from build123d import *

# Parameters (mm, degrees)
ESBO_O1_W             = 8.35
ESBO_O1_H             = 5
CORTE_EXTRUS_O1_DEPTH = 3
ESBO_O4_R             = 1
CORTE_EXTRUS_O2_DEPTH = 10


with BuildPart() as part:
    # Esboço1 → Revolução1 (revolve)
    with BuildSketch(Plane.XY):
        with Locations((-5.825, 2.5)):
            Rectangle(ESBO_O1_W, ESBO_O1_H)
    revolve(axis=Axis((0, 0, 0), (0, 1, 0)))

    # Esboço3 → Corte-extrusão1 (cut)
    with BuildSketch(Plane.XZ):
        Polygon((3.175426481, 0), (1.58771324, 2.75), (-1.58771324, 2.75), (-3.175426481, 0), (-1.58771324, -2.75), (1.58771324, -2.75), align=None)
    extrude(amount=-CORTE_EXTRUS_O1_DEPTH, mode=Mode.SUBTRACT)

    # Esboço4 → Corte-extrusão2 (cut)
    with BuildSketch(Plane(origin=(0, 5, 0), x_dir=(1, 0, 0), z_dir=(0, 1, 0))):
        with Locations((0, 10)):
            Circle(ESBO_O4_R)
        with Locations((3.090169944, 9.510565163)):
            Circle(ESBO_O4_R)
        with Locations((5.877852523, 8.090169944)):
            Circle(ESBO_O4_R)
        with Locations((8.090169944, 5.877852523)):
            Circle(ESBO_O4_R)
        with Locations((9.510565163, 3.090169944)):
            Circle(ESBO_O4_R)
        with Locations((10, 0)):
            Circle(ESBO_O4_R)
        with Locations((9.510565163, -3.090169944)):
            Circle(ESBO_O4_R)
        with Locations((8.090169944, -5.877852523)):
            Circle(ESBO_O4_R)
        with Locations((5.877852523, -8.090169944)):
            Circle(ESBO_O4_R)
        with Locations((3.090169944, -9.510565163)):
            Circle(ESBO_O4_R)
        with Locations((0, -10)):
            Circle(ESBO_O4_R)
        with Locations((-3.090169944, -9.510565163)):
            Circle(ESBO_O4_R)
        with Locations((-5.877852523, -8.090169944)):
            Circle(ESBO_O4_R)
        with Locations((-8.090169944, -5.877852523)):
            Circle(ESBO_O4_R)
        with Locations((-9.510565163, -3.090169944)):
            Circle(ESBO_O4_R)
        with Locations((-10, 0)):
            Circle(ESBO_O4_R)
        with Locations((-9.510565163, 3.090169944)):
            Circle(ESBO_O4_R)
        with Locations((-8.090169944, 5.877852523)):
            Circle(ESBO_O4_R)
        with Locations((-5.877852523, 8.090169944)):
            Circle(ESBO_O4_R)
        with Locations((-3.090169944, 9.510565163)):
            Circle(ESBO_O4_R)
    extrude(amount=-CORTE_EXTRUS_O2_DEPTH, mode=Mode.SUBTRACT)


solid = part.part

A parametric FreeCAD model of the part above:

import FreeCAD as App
import Part
import Sketcher
Q = App.Units.Quantity

doc = App.newDocument("Part")
body = doc.addObject("PartDesign::Body", "Body")

# Sketch on XY plane
sketch1 = body.newObject("Sketcher::SketchObject", "Sketch")
sketch1.AttachmentSupport = (doc.getObject("XY_Plane"), [""])
sketch1.MapMode = "FlatFace"
sketch1.addGeometry(Part.LineSegment(App.Vector(-10, 5, 0), App.Vector(-10, 0, 0)), False)
sketch1.addGeometry(Part.LineSegment(App.Vector(-10, 0, 0), App.Vector(-1.65, 0, 0)), False)
sketch1.addGeometry(Part.LineSegment(App.Vector(-1.65, 0, 0), App.Vector(-1.65, 5, 0)), False)
sketch1.addGeometry(Part.LineSegment(App.Vector(-1.65, 5, 0), App.Vector(-10, 5, 0)), False)
sketch1.addConstraint(Sketcher.Constraint("Coincident", 0, 2, 1, 1))
sketch1.addConstraint(Sketcher.Constraint("Coincident", 1, 2, 2, 1))
sketch1.addConstraint(Sketcher.Constraint("Coincident", 2, 2, 3, 1))
sketch1.addConstraint(Sketcher.Constraint("Coincident", 3, 2, 0, 1))
sketch1.addConstraint(Sketcher.Constraint("Vertical", 0))
sketch1.addConstraint(Sketcher.Constraint("Horizontal", 1))
sketch1.addConstraint(Sketcher.Constraint("Vertical", 2))
sketch1.addConstraint(Sketcher.Constraint("Horizontal", 3))
sketch1.addConstraint(Sketcher.Constraint("PointOnObject", 0, 2, -1))
sketch1.addConstraint(Sketcher.Constraint("DistanceY", 0, 2, 0, 1, Q("5 mm")))
sketch1.addConstraint(Sketcher.Constraint("DistanceX", 0, 2, -1, 1, Q("10 mm")))
sketch1.addConstraint(Sketcher.Constraint("DistanceX", 1, 1, 1, 2, Q("8.35 mm")))
revolution = body.newObject("PartDesign::Revolution", "Revolution")
revolution.Profile = sketch1
revolution.ReferenceAxis = (sketch1, ["V_Axis"])
revolution.Angle = 360

# Sketch on XZ plane
sketch2 = body.newObject("Sketcher::SketchObject", "Sketch001")
sketch2.AttachmentSupport = (doc.getObject("XZ_Plane"), [""])
sketch2.MapMode = "FlatFace"
sketch2.addGeometry(Part.LineSegment(App.Vector(3.175426, 0, 0), App.Vector(1.587713, 2.75, 0)), False)
sketch2.addGeometry(Part.LineSegment(App.Vector(1.587713, 2.75, 0), App.Vector(-1.587713, 2.75, 0)), False)
sketch2.addGeometry(Part.LineSegment(App.Vector(-1.587713, 2.75, 0), App.Vector(-3.175426, 0, 0)), False)
sketch2.addGeometry(Part.LineSegment(App.Vector(-3.175426, 0, 0), App.Vector(-1.587713, -2.75, 0)), False)
sketch2.addGeometry(Part.LineSegment(App.Vector(-1.587713, -2.75, 0), App.Vector(1.587713, -2.75, 0)), False)
sketch2.addGeometry(Part.LineSegment(App.Vector(1.587713, -2.75, 0), App.Vector(3.175426, 0, 0)), False)
sketch2.addConstraint(Sketcher.Constraint("Coincident", 0, 2, 1, 1))
sketch2.addConstraint(Sketcher.Constraint("Coincident", 1, 2, 2, 1))
sketch2.addConstraint(Sketcher.Constraint("Coincident", 2, 2, 3, 1))
sketch2.addConstraint(Sketcher.Constraint("Coincident", 3, 2, 4, 1))
sketch2.addConstraint(Sketcher.Constraint("Coincident", 4, 2, 5, 1))
sketch2.addConstraint(Sketcher.Constraint("Coincident", 5, 2, 0, 1))
sketch2.addConstraint(Sketcher.Constraint("Horizontal", 1))
sketch2.addConstraint(Sketcher.Constraint("Horizontal", 4))
sketch2.addConstraint(Sketcher.Constraint("Symmetric", 0, 2, 3, 2, -1, 1))
sketch2.addConstraint(Sketcher.Constraint("Symmetric", 2, 2, 5, 2, -1, 1))
sketch2.addConstraint(Sketcher.Constraint("PointOnObject", 2, 2, -1))
sketch2.addConstraint(Sketcher.Constraint("Parallel", 2, 5))
sketch2.addConstraint(Sketcher.Constraint("Vertical", 1, 2, 3, 2))
sketch2.addConstraint(Sketcher.Constraint("Angle", 0, Q("120 deg")))
sketch2.addConstraint(Sketcher.Constraint("DistanceY", 3, 2, 1, 2, Q("5.5 mm")))
sketch2.addConstraint(Sketcher.Constraint("DistanceX", 1, 2, 1, 1, Q("3.175426 mm")))
pocket1 = body.newObject("PartDesign::Pocket", "Pocket")
pocket1.Profile = sketch2
pocket1.Length = 3

# Sketch on XZ plane
sketch3 = body.newObject("Sketcher::SketchObject", "Sketch002")
sketch3.AttachmentSupport = (doc.getObject("XZ_Plane"), [""])
sketch3.MapMode = "FlatFace"
sketch3.AttachmentOffset = App.Placement(App.Vector(0, 0, -5), App.Rotation())
sketch3.addGeometry(Part.Circle(App.Vector(0, -10, 0), App.Vector(0, 0, 1), 1), False)
sketch3.addGeometry(Part.Circle(App.Vector(3.09017, -9.510565, 0), App.Vector(0, 0, 1), 1), False)
sketch3.addGeometry(Part.Circle(App.Vector(5.877853, -8.09017, 0), App.Vector(0, 0, 1), 1), False)
sketch3.addGeometry(Part.Circle(App.Vector(8.09017, -5.877853, 0), App.Vector(0, 0, 1), 1), False)
sketch3.addGeometry(Part.Circle(App.Vector(9.510565, -3.09017, 0), App.Vector(0, 0, 1), 1), False)
sketch3.addGeometry(Part.Circle(App.Vector(10, 0, 0), App.Vector(0, 0, 1), 1), False)
sketch3.addGeometry(Part.Circle(App.Vector(9.510565, 3.09017, 0), App.Vector(0, 0, 1), 1), False)
sketch3.addGeometry(Part.Circle(App.Vector(8.09017, 5.877853, 0), App.Vector(0, 0, 1), 1), False)
sketch3.addGeometry(Part.Circle(App.Vector(5.877853, 8.09017, 0), App.Vector(0, 0, 1), 1), False)
sketch3.addGeometry(Part.Circle(App.Vector(3.09017, 9.510565, 0), App.Vector(0, 0, 1), 1), False)
sketch3.addGeometry(Part.Circle(App.Vector(0, 10, 0), App.Vector(0, 0, 1), 1), False)
sketch3.addGeometry(Part.Circle(App.Vector(-3.09017, 9.510565, 0), App.Vector(0, 0, 1), 1), False)
sketch3.addGeometry(Part.Circle(App.Vector(-5.877853, 8.09017, 0), App.Vector(0, 0, 1), 1), False)
sketch3.addGeometry(Part.Circle(App.Vector(-8.09017, 5.877853, 0), App.Vector(0, 0, 1), 1), False)
sketch3.addGeometry(Part.Circle(App.Vector(-9.510565, 3.09017, 0), App.Vector(0, 0, 1), 1), False)
sketch3.addGeometry(Part.Circle(App.Vector(-10, 0, 0), App.Vector(0, 0, 1), 1), False)
sketch3.addGeometry(Part.Circle(App.Vector(-9.510565, -3.09017, 0), App.Vector(0, 0, 1), 1), False)
sketch3.addGeometry(Part.Circle(App.Vector(-8.09017, -5.877853, 0), App.Vector(0, 0, 1), 1), False)
sketch3.addGeometry(Part.Circle(App.Vector(-5.877853, -8.09017, 0), App.Vector(0, 0, 1), 1), False)
sketch3.addGeometry(Part.Circle(App.Vector(-3.09017, -9.510565, 0), App.Vector(0, 0, 1), 1), False)
sketch3.addConstraint(Sketcher.Constraint("Equal", 0, 1))
sketch3.addConstraint(Sketcher.Constraint("Equal", 1, 2))
sketch3.addConstraint(Sketcher.Constraint("Equal", 2, 3))
sketch3.addConstraint(Sketcher.Constraint("Equal", 3, 4))
sketch3.addConstraint(Sketcher.Constraint("Equal", 4, 5))
sketch3.addConstraint(Sketcher.Constraint("Equal", 5, 6))
sketch3.addConstraint(Sketcher.Constraint("Equal", 6, 7))
sketch3.addConstraint(Sketcher.Constraint("Equal", 7, 8))
sketch3.addConstraint(Sketcher.Constraint("Equal", 8, 9))
sketch3.addConstraint(Sketcher.Constraint("Equal", 9, 10))
sketch3.addConstraint(Sketcher.Constraint("Equal", 10, 11))
sketch3.addConstraint(Sketcher.Constraint("Equal", 11, 12))
sketch3.addConstraint(Sketcher.Constraint("Equal", 12, 13))
sketch3.addConstraint(Sketcher.Constraint("Equal", 13, 14))
sketch3.addConstraint(Sketcher.Constraint("Equal", 14, 15))
sketch3.addConstraint(Sketcher.Constraint("Equal", 15, 16))
sketch3.addConstraint(Sketcher.Constraint("Equal", 16, 17))
sketch3.addConstraint(Sketcher.Constraint("Equal", 17, 18))
sketch3.addConstraint(Sketcher.Constraint("Equal", 18, 19))
sketch3.addConstraint(Sketcher.Constraint("Symmetric", 0, 3, 10, 3, -1, 1))
sketch3.addConstraint(Sketcher.Constraint("Symmetric", 1, 3, 11, 3, -1, 1))
sketch3.addConstraint(Sketcher.Constraint("Symmetric", 2, 3, 12, 3, -1, 1))
sketch3.addConstraint(Sketcher.Constraint("Symmetric", 3, 3, 13, 3, -1, 1))
sketch3.addConstraint(Sketcher.Constraint("Symmetric", 4, 3, 14, 3, -1, 1))
sketch3.addConstraint(Sketcher.Constraint("Symmetric", 5, 3, 15, 3, -1, 1))
sketch3.addConstraint(Sketcher.Constraint("Symmetric", 6, 3, 16, 3, -1, 1))
sketch3.addConstraint(Sketcher.Constraint("Symmetric", 7, 3, 17, 3, -1, 1))
sketch3.addConstraint(Sketcher.Constraint("Symmetric", 8, 3, 18, 3, -1, 1))
sketch3.addConstraint(Sketcher.Constraint("Symmetric", 9, 3, 19, 3, -1, 1))
sketch3.addConstraint(Sketcher.Constraint("Symmetric", 9, 3, 11, 3, -2))
sketch3.addConstraint(Sketcher.Constraint("Symmetric", 8, 3, 12, 3, -2))
sketch3.addConstraint(Sketcher.Constraint("Symmetric", 7, 3, 13, 3, -2))
sketch3.addConstraint(Sketcher.Constraint("Symmetric", 6, 3, 14, 3, -2))
sketch3.addConstraint(Sketcher.Constraint("PointOnObject", 0, 3, -2))
sketch3.addConstraint(Sketcher.Constraint("PointOnObject", 5, 3, -1))
sketch3.addConstraint(Sketcher.Constraint("Diameter", 0, Q("2 mm")))
sketch3.addConstraint(Sketcher.Constraint("DistanceY", 0, 3, -1, 1, Q("10 mm")))
sketch3.addConstraint(Sketcher.Constraint("DistanceX", -1, 1, 5, 3, Q("10 mm")))
sketch3.addConstraint(Sketcher.Constraint("DistanceX", 1, 3, 3, 3, Q("5 mm")))
sketch3.addConstraint(Sketcher.Constraint("DistanceY", 2, 3, 4, 3, Q("5 mm")))
sketch3.addConstraint(Sketcher.Constraint("DistanceX", -1, 1, 1, 3, Q("3.09017 mm")))
sketch3.addConstraint(Sketcher.Constraint("DistanceY", 2, 3, -1, 1, Q("8.09017 mm")))
sketch3.addConstraint(Sketcher.Constraint("DistanceY", 1, 3, -1, 1, Q("9.510565 mm")))
sketch3.addConstraint(Sketcher.Constraint("DistanceX", -1, 1, 2, 3, Q("5.877853 mm")))
sketch3.addConstraint(Sketcher.Constraint("DistanceY", 3, 3, -1, 1, Q("5.877853 mm")))
sketch3.addConstraint(Sketcher.Constraint("DistanceX", -1, 1, 4, 3, Q("9.510565 mm")))
pocket2 = body.newObject("PartDesign::Pocket", "Pocket001")
pocket2.Profile = sketch3
pocket2.Length = 10
pocket2.Reversed = True

doc.recompute()
